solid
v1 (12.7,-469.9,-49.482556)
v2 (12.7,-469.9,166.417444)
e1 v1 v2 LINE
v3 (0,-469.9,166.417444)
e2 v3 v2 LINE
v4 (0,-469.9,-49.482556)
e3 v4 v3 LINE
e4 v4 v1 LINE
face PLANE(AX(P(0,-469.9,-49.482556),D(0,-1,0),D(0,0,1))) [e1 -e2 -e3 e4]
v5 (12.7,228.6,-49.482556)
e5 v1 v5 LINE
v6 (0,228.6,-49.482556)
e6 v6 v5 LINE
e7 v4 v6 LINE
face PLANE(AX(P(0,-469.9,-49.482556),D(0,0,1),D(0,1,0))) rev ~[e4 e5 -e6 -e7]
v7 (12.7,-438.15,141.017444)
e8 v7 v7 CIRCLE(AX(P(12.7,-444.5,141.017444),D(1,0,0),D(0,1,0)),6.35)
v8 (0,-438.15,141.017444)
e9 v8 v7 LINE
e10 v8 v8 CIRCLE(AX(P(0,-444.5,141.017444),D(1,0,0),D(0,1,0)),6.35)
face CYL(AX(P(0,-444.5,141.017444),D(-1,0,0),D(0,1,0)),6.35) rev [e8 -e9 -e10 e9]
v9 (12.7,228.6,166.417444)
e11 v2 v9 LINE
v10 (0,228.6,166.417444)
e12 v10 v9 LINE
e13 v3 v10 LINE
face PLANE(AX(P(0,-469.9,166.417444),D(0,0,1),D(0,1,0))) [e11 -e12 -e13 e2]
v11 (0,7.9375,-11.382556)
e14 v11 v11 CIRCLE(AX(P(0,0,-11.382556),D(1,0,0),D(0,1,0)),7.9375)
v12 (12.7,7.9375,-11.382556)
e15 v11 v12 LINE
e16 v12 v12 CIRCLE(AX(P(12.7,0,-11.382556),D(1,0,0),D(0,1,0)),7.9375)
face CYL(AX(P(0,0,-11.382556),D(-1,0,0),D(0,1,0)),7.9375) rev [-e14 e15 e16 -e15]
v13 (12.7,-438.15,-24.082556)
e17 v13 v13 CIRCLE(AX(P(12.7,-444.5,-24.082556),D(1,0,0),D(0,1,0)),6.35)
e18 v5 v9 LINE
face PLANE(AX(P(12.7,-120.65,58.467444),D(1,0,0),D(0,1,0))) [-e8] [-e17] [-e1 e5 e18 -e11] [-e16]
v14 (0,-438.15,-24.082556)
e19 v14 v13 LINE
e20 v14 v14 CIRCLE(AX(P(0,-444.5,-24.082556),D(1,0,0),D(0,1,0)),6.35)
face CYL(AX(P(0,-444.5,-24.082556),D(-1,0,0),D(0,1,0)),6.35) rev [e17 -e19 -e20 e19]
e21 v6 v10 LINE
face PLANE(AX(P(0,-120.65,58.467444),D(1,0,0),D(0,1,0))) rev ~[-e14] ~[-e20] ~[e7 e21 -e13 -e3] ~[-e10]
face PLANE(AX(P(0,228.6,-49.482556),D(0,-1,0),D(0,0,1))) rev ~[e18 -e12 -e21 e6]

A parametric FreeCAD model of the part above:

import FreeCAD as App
import Part
import Sketcher

V = App.Vector
Q = App.Units.Quantity

doc = App.newDocument("Part")
params = doc.addObject("Spreadsheet::Sheet", "Params")
for row, (alias, value) in enumerate([
    ("sketch1_diameter", "0.5 in"),
    ("sketch1_diameter2", "0.625 in"),
    ("sketch1_width", "27.5 in"),
    ("sketch1_height", "8.5 in"),
    ("pad1_length", "0.5 in"),
], start=1):
    params.set(f"A{row}", alias)
    params.set(f"B{row}", "=" + value)
    params.setAlias(f"B{row}", alias)

body = doc.addObject("PartDesign::Body", "Body")

# Sketch on YZ plane
sketch1 = body.newObject("Sketcher::SketchObject", "Sketch")
sketch1.AttachmentSupport = (doc.getObject("YZ_Plane"), [""])
sketch1.MapMode = "FlatFace"
sketch1.addGeometry([
    Part.LineSegment(V(-470, 166, 0), V(-470, -49, 0)),  # 0
    Part.LineSegment(V(-470, -49, 0), V(229, -49, 0)),  # 1
    Part.LineSegment(V(229, -49, 0), V(229, 166, 0)),  # 2
    Part.LineSegment(V(229, 166, 0), V(-470, 166, 0)),  # 3
    Part.Circle(V(-444, -24, 0), V(0, 0, 1), 6),  # 4
    Part.Circle(V(0, -11, 0), V(0, 0, 1), 8),  # 5
    Part.Circle(V(-444, 141, 0), V(0, 0, 1), 6),  # 6
], False)
sketch1.addConstraint([
    Sketcher.Constraint("Coincident", 0, 2, 1, 1),
    Sketcher.Constraint("Coincident", 1, 2, 2, 1),
    Sketcher.Constraint("Coincident", 2, 2, 3, 1),
    Sketcher.Constraint("Coincident", 3, 2, 0, 1),
    Sketcher.Constraint("Vertical", 0),
    Sketcher.Constraint("Horizontal", 1),
    Sketcher.Constraint("Vertical", 2),
    Sketcher.Constraint("Horizontal", 3),
    Sketcher.Constraint("Equal", 4, 6),
    Sketcher.Constraint("PointOnObject", 5, 3, -2),
    Sketcher.Constraint("Vertical", 4, 3, 6, 3),
    Sketcher.Constraint("Diameter", 4, Q("0.5 in")),
    Sketcher.Constraint("Diameter", 5, Q("0.625 in")),
    Sketcher.Constraint("DistanceX", 1, 1, 1, 2, Q("27.5 in")),
    Sketcher.Constraint("DistanceY", 0, 2, 0, 1, Q("8.5 in")),
    Sketcher.Constraint("DistanceX", -1, 1, 1, 2, Q("9 in")),
    Sketcher.Constraint("DistanceY", 5, 3, 6, 3, Q("6 in")),
    Sketcher.Constraint("DistanceX", 0, 2, 4, 3, Q("1 in")),
    Sketcher.Constraint("DistanceY", 0, 2, 4, 3, Q("1 in")),
    Sketcher.Constraint("DistanceY", 5, 3, 2, 2, Q("7 in")),
    Sketcher.Constraint("DistanceY", 4, 3, -1, 1, Q("24.082556 mm")),
])
sketch1.setExpression("Constraints[11]", "Params.sketch1_diameter")
sketch1.setExpression("Constraints[12]", "Params.sketch1_diameter2")
sketch1.setExpression("Constraints[13]", "Params.sketch1_width")
sketch1.setExpression("Constraints[14]", "Params.sketch1_height")
pad1 = body.newObject("PartDesign::Pad", "Pad")
pad1.Profile = sketch1
pad1.setExpression("Length", "Params.pad1_length")

doc.recompute()
